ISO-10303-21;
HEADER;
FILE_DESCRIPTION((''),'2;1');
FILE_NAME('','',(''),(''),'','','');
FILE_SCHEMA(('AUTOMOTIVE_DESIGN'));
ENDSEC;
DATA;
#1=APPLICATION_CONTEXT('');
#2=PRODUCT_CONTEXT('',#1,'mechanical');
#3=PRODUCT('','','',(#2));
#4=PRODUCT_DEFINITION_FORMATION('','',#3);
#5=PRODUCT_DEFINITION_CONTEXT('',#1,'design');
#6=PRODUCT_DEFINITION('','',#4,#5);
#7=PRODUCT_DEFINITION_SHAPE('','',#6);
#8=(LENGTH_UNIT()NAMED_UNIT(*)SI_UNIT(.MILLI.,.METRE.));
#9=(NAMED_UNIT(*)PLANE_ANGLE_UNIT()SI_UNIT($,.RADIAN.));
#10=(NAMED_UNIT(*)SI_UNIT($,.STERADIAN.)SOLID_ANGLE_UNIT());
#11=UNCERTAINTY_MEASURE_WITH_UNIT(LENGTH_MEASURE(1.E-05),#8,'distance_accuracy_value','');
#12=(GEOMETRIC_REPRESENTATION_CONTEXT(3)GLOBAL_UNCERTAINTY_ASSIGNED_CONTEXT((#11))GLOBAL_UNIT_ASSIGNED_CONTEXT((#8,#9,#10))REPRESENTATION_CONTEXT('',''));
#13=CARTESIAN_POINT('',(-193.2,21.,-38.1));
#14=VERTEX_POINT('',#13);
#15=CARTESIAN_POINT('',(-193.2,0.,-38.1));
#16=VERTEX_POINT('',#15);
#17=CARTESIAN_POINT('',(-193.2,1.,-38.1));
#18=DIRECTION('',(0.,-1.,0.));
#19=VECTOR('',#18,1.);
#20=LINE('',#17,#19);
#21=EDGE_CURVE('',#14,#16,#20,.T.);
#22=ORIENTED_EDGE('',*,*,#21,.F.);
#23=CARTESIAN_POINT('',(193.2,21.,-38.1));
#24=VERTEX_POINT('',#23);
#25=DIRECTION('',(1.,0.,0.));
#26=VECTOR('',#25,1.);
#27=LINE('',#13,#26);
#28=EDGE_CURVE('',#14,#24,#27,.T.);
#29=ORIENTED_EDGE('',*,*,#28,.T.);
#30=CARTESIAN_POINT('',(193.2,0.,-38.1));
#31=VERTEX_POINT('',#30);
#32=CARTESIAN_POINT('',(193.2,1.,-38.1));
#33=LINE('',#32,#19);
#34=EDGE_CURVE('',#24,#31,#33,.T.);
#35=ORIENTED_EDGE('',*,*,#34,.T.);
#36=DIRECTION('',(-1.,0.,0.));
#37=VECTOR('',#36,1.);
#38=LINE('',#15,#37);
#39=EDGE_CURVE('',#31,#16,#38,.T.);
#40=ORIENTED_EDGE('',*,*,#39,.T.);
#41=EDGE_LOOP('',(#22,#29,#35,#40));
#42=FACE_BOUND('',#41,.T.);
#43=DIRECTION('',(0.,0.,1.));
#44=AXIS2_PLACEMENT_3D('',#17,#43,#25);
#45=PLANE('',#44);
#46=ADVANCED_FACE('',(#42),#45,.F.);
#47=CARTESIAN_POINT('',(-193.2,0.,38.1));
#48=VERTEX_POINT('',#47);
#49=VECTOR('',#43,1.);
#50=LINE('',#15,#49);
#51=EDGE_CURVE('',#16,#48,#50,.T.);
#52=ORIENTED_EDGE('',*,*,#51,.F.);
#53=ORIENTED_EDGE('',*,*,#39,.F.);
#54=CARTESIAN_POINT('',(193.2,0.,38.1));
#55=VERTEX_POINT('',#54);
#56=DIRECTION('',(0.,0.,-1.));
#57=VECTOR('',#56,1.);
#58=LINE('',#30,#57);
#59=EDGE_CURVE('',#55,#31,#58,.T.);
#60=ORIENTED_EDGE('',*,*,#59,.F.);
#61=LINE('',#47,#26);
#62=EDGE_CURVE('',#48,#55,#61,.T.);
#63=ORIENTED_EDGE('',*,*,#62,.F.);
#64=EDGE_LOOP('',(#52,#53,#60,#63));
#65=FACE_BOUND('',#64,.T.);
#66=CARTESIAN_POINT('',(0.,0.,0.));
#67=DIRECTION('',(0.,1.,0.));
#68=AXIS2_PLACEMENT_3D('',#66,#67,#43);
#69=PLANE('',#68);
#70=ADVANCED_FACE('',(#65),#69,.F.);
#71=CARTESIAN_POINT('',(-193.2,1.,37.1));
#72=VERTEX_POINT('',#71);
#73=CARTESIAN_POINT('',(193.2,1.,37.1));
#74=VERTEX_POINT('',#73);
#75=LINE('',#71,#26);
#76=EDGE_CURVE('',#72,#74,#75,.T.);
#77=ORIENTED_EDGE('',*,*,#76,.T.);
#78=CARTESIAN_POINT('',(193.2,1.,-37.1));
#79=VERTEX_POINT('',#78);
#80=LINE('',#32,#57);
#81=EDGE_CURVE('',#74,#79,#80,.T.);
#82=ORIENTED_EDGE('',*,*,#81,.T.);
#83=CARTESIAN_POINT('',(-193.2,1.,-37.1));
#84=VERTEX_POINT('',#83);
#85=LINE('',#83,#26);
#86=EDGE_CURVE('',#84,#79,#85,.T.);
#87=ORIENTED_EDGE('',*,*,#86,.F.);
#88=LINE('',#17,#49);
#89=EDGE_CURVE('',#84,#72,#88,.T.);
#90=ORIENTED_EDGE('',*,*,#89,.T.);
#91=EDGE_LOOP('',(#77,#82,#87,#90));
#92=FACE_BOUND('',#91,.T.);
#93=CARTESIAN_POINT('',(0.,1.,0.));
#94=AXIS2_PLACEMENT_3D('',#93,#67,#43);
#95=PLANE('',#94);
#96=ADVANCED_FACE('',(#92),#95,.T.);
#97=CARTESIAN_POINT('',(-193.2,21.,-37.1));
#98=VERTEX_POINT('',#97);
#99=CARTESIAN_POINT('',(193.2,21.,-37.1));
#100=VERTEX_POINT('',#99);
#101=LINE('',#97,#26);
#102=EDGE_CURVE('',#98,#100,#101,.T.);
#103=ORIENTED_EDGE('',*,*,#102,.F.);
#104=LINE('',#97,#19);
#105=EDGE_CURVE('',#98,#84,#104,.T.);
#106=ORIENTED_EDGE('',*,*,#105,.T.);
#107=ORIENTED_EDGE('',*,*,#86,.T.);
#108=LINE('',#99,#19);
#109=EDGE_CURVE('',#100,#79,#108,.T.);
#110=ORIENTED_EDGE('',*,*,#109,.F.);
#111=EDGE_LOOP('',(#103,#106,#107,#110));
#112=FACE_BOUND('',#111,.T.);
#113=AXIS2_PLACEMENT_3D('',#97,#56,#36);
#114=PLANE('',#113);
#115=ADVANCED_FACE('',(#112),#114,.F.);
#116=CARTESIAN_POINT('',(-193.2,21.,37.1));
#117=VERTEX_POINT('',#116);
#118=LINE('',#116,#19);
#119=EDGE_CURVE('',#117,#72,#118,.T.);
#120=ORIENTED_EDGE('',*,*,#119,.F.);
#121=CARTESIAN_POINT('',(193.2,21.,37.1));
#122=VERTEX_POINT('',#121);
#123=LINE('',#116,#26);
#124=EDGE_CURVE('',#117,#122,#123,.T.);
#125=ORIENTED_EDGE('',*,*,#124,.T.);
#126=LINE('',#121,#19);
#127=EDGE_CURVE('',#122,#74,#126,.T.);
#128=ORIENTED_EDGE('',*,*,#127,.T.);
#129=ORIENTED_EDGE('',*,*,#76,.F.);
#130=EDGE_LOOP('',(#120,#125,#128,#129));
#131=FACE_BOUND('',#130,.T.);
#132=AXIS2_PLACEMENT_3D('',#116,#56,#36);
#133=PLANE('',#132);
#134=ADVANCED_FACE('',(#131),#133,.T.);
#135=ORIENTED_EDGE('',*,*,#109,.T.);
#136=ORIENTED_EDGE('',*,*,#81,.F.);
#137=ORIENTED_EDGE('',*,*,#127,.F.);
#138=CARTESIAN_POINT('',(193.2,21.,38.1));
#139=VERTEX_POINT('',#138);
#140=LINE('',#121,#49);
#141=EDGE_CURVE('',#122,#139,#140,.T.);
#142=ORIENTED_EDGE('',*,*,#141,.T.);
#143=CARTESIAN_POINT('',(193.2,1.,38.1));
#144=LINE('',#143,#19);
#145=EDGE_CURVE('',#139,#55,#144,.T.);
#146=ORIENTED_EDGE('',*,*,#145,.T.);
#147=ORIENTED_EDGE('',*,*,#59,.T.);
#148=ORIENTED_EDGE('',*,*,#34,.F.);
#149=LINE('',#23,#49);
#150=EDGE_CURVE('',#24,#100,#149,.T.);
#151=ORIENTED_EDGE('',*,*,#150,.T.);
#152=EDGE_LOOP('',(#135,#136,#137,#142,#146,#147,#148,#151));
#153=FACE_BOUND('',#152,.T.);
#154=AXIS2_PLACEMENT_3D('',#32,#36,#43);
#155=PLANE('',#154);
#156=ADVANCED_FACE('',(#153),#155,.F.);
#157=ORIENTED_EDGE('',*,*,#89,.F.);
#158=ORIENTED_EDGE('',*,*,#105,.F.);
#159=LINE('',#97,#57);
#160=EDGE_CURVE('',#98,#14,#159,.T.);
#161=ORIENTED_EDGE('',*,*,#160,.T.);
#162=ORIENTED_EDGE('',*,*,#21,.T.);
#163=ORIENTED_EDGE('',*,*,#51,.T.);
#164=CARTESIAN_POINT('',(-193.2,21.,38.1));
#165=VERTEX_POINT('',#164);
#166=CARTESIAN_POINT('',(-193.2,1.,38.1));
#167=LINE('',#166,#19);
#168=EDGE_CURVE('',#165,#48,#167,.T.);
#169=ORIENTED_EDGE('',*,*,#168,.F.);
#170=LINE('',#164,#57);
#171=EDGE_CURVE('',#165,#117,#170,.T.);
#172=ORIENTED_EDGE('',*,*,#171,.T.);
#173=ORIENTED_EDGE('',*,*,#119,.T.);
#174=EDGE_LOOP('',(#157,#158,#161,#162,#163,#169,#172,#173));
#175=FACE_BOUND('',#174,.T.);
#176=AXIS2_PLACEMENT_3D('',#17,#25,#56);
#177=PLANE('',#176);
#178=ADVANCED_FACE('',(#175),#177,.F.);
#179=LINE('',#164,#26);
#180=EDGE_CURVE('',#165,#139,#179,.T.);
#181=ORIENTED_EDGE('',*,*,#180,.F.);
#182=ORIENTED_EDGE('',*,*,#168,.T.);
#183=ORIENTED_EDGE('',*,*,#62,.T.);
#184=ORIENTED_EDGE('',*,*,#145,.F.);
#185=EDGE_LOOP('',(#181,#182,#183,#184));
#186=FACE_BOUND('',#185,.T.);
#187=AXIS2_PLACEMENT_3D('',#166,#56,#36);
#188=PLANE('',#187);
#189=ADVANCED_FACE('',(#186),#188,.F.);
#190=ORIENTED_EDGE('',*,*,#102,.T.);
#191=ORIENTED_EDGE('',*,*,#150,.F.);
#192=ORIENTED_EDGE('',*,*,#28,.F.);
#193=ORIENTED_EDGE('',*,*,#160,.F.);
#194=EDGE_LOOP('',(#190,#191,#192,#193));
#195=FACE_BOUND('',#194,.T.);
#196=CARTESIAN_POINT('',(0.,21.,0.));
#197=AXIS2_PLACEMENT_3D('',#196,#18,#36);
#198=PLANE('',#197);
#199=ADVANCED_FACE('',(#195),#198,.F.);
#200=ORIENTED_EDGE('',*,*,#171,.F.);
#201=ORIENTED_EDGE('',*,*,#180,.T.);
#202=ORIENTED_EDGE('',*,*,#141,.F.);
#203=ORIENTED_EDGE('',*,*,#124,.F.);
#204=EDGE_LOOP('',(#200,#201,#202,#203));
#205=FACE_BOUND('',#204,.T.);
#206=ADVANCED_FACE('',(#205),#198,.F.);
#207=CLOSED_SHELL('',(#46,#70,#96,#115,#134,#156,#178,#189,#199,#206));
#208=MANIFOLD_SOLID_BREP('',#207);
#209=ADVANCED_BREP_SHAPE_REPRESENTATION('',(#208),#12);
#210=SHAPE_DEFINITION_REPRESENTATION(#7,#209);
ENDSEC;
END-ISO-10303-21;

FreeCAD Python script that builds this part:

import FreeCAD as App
import Part
import Sketcher

V = App.Vector

doc = App.newDocument("Part")
body = doc.addObject("PartDesign::Body", "Body")

# Sketch on XZ plane
sketch1 = body.newObject("Sketcher::SketchObject", "Sketch")
sketch1.AttachmentSupport = (doc.getObject("XZ_Plane"), [""])
sketch1.MapMode = "FlatFace"
sketch1.addGeometry([
    Part.LineSegment(V(-193, -38, 0), V(-193, 38, 0)),
    Part.LineSegment(V(-193, 38, 0), V(193, 38, 0)),
    Part.LineSegment(V(193, 38, 0), V(193, -38, 0)),
    Part.LineSegment(V(193, -38, 0), V(-193, -38, 0)),
], False)
sketch1.addConstraint([
    Sketcher.Constraint("Coincident", 0, 2, 1, 1),
    Sketcher.Constraint("Coincident", 1, 2, 2, 1),
    Sketcher.Constraint("Coincident", 2, 2, 3, 1),
    Sketcher.Constraint("Coincident", 3, 2, 0, 1),
    Sketcher.Constraint("Vertical", 0),
    Sketcher.Constraint("Horizontal", 1),
    Sketcher.Constraint("Vertical", 2),
    Sketcher.Constraint("Horizontal", 3),
    Sketcher.Constraint("Symmetric", 0, 2, 2, 2, -1, 1),
    Sketcher.Constraint("DistanceX", 1, 1, 1, 2, 386.4),
    Sketcher.Constraint("DistanceY", 0, 1, 0, 2, 76.2),
])
pad1 = body.newObject("PartDesign::Pad", "Pad")
pad1.Profile = sketch1
pad1.Length = 1
pad1.Reversed = True

# Sketch on XZ plane
sketch2 = body.newObject("Sketcher::SketchObject", "Sketch001")
sketch2.AttachmentSupport = (doc.getObject("XZ_Plane"), [""])
sketch2.MapMode = "FlatFace"
sketch2.AttachmentOffset = App.Placement(V(0, 0, -1), App.Rotation())
sketch2.addGeometry([
    Part.LineSegment(V(-193.2, 37.1, 0), V(-193.2, 38.1, 0)),
    Part.LineSegment(V(-193.2, 38.1, 0), V(193.2, 38.1, 0)),
    Part.LineSegment(V(193.2, 38.1, 0), V(193.2, 37.1, 0)),
    Part.LineSegment(V(193.2, 37.1, 0), V(-193.2, 37.1, 0)),
], False)
sketch2.addConstraint([
    Sketcher.Constraint("Coincident", 0, 2, 1, 1),
    Sketcher.Constraint("Coincident", 1, 2, 2, 1),
    Sketcher.Constraint("Coincident", 2, 2, 3, 1),
    Sketcher.Constraint("Coincident", 3, 2, 0, 1),
    Sketcher.Constraint("Vertical", 0),
    Sketcher.Constraint("Horizontal", 1),
    Sketcher.Constraint("Vertical", 2),
    Sketcher.Constraint("Horizontal", 3),
    Sketcher.Constraint("DistanceY", 0, 1, 0, 2, 1.0),
    Sketcher.Constraint("DistanceX", 1, 1, 1, 2, 386.4),
    Sketcher.Constraint("DistanceX", 0, 2, -1, 1, 193.2),
    Sketcher.Constraint("DistanceY", -1, 1, 0, 2, 38.1),
])
pad2 = body.newObject("PartDesign::Pad", "Pad001")
pad2.Profile = sketch2
pad2.Length = 20
pad2.Reversed = True

# Sketch on XZ plane
sketch3 = body.newObject("Sketcher::SketchObject", "Sketch002")
sketch3.AttachmentSupport = (doc.getObject("XZ_Plane"), [""])
sketch3.MapMode = "FlatFace"
sketch3.AttachmentOffset = App.Placement(V(0, 0, -1), App.Rotation())
sketch3.addGeometry([
    Part.LineSegment(V(-193.2, -38.1, 0), V(-193.2, -37.1, 0)),
    Part.LineSegment(V(-193.2, -37.1, 0), V(193.2, -37.1, 0)),
    Part.LineSegment(V(193.2, -37.1, 0), V(193.2, -38.1, 0)),
    Part.LineSegment(V(193.2, -38.1, 0), V(-193.2, -38.1, 0)),
], False)
sketch3.addConstraint([
    Sketcher.Constraint("Coincident", 0, 2, 1, 1),
    Sketcher.Constraint("Coincident", 1, 2, 2, 1),
    Sketcher.Constraint("Coincident", 2, 2, 3, 1),
    Sketcher.Constraint("Coincident", 3, 2, 0, 1),
    Sketcher.Constraint("Vertical", 0),
    Sketcher.Constraint("Horizontal", 1),
    Sketcher.Constraint("Vertical", 2),
    Sketcher.Constraint("Horizontal", 3),
    Sketcher.Constraint("DistanceY", 0, 1, 0, 2, 1.0),
    Sketcher.Constraint("DistanceX", 1, 1, 1, 2, 386.4),
    Sketcher.Constraint("DistanceX", 0, 2, -1, 1, 193.2),
    Sketcher.Constraint("DistanceY", 0, 2, -1, 1, 37.1),
])
pad3 = body.newObject("PartDesign::Pad", "Pad002")
pad3.Profile = sketch3
pad3.Length = 20
pad3.Reversed = True

doc.recompute()
